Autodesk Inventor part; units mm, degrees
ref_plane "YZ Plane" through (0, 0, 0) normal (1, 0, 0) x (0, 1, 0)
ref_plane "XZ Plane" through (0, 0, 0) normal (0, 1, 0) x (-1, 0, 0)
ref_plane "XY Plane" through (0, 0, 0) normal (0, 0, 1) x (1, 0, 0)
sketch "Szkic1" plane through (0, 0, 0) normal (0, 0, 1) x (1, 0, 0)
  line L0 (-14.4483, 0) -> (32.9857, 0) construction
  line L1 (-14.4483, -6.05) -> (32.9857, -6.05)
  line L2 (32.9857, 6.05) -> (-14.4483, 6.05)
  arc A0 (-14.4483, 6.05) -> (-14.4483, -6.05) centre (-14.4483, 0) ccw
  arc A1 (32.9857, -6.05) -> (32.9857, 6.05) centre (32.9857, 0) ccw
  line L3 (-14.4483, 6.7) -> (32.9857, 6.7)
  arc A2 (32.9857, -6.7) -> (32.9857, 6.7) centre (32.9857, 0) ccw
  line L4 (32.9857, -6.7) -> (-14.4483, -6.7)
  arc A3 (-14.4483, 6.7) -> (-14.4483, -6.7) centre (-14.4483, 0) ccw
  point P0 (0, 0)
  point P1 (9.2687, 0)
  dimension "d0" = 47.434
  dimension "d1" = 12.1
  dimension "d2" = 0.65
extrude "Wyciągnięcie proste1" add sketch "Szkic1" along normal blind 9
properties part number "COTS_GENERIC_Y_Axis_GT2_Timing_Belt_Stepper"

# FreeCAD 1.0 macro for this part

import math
import FreeCAD as App
import Part
import Sketcher

V = App.Vector

doc = App.newDocument("Part")
body = doc.addObject("PartDesign::Body", "Body")

sketch1 = body.newObject("Sketcher::SketchObject", "Sketch")
sketch1.AttachmentSupport = (doc.getObject("XY_Plane"), [""])
sketch1.MapMode = "FlatFace"
sketch1.addGeometry([
    Part.LineSegment(V(33, 7, 0), V(-14, 7, 0)),
    Part.ArcOfCircle(Part.Circle(V(-14, 0, 0), V(0, 0, 1), 7), math.radians(90), math.radians(270)),
    Part.LineSegment(V(-14, -7, 0), V(33, -7, 0)),
    Part.ArcOfCircle(Part.Circle(V(33, 0, 0), V(0, 0, 1), 7), math.radians(-90), math.radians(90)),
    Part.LineSegment(V(33, -6, 0), V(-14, -6, 0)),
    Part.ArcOfCircle(Part.Circle(V(-14, 0, 0), V(0, 0, 1), 6), math.radians(90), math.radians(270)),
    Part.LineSegment(V(-14, 6, 0), V(33, 6, 0)),
    Part.ArcOfCircle(Part.Circle(V(33, 0, 0), V(0, 0, 1), 6), math.radians(-90), math.radians(90)),
], False)
sketch1.addConstraint([
    Sketcher.Constraint("Tangent", 0, 2, 1, 1),
    Sketcher.Constraint("Tangent", 1, 2, 2, 1),
    Sketcher.Constraint("Tangent", 2, 2, 3, 1),
    Sketcher.Constraint("Tangent", 3, 2, 0, 1),
    Sketcher.Constraint("Tangent", 4, 2, 5, 2),
    Sketcher.Constraint("Tangent", 5, 1, 6, 1),
    Sketcher.Constraint("Tangent", 6, 2, 7, 2),
    Sketcher.Constraint("Tangent", 7, 1, 4, 1),
    Sketcher.Constraint("Horizontal", 0),
    Sketcher.Constraint("Horizontal", 2),
    Sketcher.Constraint("Horizontal", 4),
    Sketcher.Constraint("Horizontal", 6),
    Sketcher.Constraint("Coincident", 5, 3, 1, 3),
    Sketcher.Constraint("PointOnObject", 1, 3, -1),
    Sketcher.Constraint("Vertical", 7, 3, 2, 2),
    Sketcher.Constraint("Radius", 5, 6.05),
    Sketcher.Constraint("Radius", 1, 6.7),
    Sketcher.Constraint("DistanceX", 0, 2, 0, 1, 47.434),
    Sketcher.Constraint("DistanceX", 1, 3, -1, 1, 14.4483),
])
pad1 = body.newObject("PartDesign::Pad", "Pad")
pad1.Profile = sketch1
pad1.Length = 9

doc.recompute()
